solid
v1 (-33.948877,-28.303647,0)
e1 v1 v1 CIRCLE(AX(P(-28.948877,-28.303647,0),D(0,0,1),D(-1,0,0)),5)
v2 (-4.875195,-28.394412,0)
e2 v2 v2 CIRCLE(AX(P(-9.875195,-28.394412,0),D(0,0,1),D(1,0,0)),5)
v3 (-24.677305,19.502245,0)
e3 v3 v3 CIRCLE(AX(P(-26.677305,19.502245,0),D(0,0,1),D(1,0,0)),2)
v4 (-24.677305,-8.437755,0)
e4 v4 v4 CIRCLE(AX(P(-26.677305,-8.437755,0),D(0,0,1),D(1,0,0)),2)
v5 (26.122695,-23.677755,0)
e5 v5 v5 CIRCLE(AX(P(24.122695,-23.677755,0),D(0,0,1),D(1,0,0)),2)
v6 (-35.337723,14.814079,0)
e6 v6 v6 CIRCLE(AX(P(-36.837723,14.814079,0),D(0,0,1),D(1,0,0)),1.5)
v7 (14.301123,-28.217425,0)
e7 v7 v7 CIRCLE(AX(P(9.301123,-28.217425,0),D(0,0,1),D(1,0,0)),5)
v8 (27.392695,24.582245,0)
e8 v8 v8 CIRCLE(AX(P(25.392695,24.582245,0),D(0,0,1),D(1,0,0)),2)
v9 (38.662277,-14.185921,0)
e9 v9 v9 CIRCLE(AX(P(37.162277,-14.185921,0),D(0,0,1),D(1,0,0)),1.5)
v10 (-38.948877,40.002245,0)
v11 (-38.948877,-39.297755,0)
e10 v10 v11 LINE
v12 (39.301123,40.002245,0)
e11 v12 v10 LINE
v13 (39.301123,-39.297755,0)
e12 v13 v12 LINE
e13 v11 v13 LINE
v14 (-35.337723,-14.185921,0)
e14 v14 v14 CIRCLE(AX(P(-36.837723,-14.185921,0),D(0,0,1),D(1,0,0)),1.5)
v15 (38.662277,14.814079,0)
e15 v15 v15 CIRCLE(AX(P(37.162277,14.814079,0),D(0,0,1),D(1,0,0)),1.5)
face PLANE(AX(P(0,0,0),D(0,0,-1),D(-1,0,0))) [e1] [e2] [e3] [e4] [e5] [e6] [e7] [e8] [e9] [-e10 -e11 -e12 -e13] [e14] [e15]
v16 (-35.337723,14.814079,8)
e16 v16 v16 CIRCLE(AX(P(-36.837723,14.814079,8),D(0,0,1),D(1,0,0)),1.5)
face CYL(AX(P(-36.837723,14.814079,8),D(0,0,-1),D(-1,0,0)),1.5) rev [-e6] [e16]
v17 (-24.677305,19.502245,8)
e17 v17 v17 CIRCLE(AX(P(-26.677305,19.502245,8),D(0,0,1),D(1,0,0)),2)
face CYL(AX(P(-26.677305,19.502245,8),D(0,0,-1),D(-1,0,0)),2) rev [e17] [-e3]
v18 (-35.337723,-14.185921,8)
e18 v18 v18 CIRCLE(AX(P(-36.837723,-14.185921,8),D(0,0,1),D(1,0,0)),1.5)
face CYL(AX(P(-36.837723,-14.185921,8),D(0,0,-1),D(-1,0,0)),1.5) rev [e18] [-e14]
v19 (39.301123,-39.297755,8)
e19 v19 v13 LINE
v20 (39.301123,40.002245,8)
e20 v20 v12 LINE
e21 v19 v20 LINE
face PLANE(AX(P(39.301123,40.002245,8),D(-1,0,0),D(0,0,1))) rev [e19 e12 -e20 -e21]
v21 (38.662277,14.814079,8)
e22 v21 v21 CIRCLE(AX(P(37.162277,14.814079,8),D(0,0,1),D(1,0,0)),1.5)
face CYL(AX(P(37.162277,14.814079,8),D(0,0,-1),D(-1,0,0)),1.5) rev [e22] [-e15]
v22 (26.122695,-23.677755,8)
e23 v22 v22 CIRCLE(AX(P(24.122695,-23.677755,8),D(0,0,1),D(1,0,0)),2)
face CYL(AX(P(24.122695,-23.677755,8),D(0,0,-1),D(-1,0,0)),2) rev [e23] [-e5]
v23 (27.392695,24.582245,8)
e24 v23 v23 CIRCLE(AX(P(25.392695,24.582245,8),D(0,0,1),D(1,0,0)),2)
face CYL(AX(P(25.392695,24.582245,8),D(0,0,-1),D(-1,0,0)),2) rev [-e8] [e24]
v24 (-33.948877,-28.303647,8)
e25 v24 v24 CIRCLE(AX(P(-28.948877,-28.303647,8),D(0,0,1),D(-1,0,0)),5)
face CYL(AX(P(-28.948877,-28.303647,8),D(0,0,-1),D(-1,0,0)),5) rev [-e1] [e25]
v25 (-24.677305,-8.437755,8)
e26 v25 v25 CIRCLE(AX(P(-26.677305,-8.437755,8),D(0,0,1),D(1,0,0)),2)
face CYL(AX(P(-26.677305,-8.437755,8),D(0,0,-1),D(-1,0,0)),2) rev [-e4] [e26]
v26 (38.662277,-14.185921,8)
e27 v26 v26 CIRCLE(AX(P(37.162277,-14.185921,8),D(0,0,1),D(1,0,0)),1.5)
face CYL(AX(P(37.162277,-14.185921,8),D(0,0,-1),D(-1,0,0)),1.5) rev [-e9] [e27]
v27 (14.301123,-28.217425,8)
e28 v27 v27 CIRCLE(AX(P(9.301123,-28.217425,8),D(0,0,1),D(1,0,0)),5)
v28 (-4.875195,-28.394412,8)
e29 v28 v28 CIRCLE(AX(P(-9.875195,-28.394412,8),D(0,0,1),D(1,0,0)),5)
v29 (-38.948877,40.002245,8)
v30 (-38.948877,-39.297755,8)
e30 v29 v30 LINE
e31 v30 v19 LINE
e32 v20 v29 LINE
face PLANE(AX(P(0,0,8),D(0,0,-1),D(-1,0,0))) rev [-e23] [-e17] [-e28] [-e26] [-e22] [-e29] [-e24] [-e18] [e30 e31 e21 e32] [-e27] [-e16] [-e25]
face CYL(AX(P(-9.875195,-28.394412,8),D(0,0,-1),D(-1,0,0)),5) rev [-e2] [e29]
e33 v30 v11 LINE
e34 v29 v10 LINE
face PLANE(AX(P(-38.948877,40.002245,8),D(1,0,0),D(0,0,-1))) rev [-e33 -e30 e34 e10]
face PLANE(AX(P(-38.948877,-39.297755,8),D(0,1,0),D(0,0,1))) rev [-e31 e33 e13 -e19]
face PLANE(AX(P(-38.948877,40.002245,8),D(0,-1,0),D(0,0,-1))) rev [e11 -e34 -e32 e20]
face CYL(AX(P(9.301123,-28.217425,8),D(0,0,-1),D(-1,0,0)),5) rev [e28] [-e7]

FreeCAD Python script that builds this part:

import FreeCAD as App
import Part
import Sketcher

V = App.Vector


def add_polygon(sketch, points):
    """Adds a closed chain of lines whose ends are joined by coincident constraints."""
    first, n = sketch.GeometryCount, len(points)
    for a, b in zip(points, points[1:] + points[:1]):
        sketch.addGeometry(Part.LineSegment(App.Vector(*a, 0), App.Vector(*b, 0)), False)
    for i in range(n):
        sketch.addConstraint(Sketcher.Constraint("Coincident", first + i, 2, first + (i + 1) % n, 1))

doc = App.newDocument("Part")
params = doc.addObject("Spreadsheet::Sheet", "Params")
for row, (alias, value) in enumerate([
    ("sketch1_diameter", "10 mm"),
    ("sketch1_diameter2", "3 mm"),
    ("sketch1_diameter3", "4 mm"),
    ("sketch1_height", "79.3 mm"),
    ("sketch1_width", "78.25 mm"),
    ("pad1_length", "8 mm"),
], start=1):
    params.set(f"A{row}", alias)
    params.set(f"B{row}", "=" + value)
    params.setAlias(f"B{row}", alias)

body = doc.addObject("PartDesign::Body", "Body")

# Sketch on XY plane
sketch1 = body.newObject("Sketcher::SketchObject", "Sketch")
sketch1.AttachmentSupport = (doc.getObject("XY_Plane"), [""])
sketch1.MapMode = "FlatFace"
add_polygon(sketch1, [(-38.9, 40), (-38.9, -39.3), (39.3, -39.3), (39.3, 40)])  # lines 0-3
sketch1.addGeometry(Part.Circle(V(-28.9, -28.3, 0), V(0, 0, 1), 5), False)  # 4
sketch1.addGeometry(Part.Circle(V(-9.9, -28.4, 0), V(0, 0, 1), 5), False)  # 5
sketch1.addGeometry(Part.Circle(V(-36.8, -14.2, 0), V(0, 0, 1), 1.5), False)  # 6
sketch1.addGeometry(Part.Circle(V(-26.7, -8.4, 0), V(0, 0, 1), 2), False)  # 7
sketch1.addGeometry(Part.Circle(V(9.3, -28.2, 0), V(0, 0, 1), 5), False)  # 8
sketch1.addGeometry(Part.Circle(V(24.1, -23.7, 0), V(0, 0, 1), 2), False)  # 9
sketch1.addGeometry(Part.Circle(V(37.2, -14.2, 0), V(0, 0, 1), 1.5), False)  # 10
sketch1.addGeometry(Part.Circle(V(-36.8, 14.8, 0), V(0, 0, 1), 1.5), False)  # 11
sketch1.addGeometry(Part.Circle(V(-26.7, 19.5, 0), V(0, 0, 1), 2), False)  # 12
sketch1.addGeometry(Part.Circle(V(37.2, 14.8, 0), V(0, 0, 1), 1.5), False)  # 13
sketch1.addGeometry(Part.Circle(V(25.4, 24.6, 0), V(0, 0, 1), 2), False)  # 14
sketch1.addConstraint([
    Sketcher.Constraint("Vertical", 0),
    Sketcher.Constraint("Horizontal", 1),
    Sketcher.Constraint("Vertical", 2),
    Sketcher.Constraint("Horizontal", 3),
    Sketcher.Constraint("Equal", 4, 5),
    Sketcher.Constraint("Equal", 5, 8),
    Sketcher.Constraint("Equal", 7, 9),
    Sketcher.Constraint("Equal", 6, 10),
    Sketcher.Constraint("Equal", 10, 11),
    Sketcher.Constraint("Equal", 9, 12),
    Sketcher.Constraint("Equal", 11, 13),
    Sketcher.Constraint("Equal", 12, 14),
    Sketcher.Constraint("Horizontal", 6, 3, 10, 3),
    Sketcher.Constraint("Horizontal", 11, 3, 13, 3),
    Sketcher.Constraint("Vertical", 6, 3, 11, 3),
    Sketcher.Constraint("Vertical", 7, 3, 12, 3),
    Sketcher.Constraint("Vertical", 10, 3, 13, 3),
    Sketcher.Constraint("Diameter", 4, 10.0),
    Sketcher.Constraint("Diameter", 6, 3.0),
    Sketcher.Constraint("Diameter", 7, 4.0),
    Sketcher.Constraint("DistanceY", 0, 2, 0, 1, 79.3),
    Sketcher.Constraint("DistanceY", 6, 3, 11, 3, 29.0),
    Sketcher.Constraint("DistanceX", 0, 2, 4, 3, 10.0),
    Sketcher.Constraint("DistanceX", 8, 3, 1, 2, 30.0),
    Sketcher.Constraint("DistanceX", 1, 1, 1, 2, 78.25),
    Sketcher.Constraint("DistanceX", 7, 3, 9, 3, 50.8),
    Sketcher.Constraint("DistanceY", 12, 3, 2, 2, 20.5),
    Sketcher.Constraint("DistanceY", 9, 3, 7, 3, 15.24),
    Sketcher.Constraint("DistanceY", 7, 3, 12, 3, 27.94),
    Sketcher.Constraint("DistanceX", 9, 3, 14, 3, 1.27),
    Sketcher.Constraint("DistanceY", 9, 3, 14, 3, 48.26),
    Sketcher.Constraint("DistanceY", 6, 3, -1, 1, 14.185921),
    Sketcher.Constraint("DistanceX", 6, 3, 5, 3, 26.962528),
    Sketcher.Constraint("DistanceY", 5, 3, 6, 3, 14.208491),
    Sketcher.Constraint("DistanceX", 6, 3, 7, 3, 10.160419),
    Sketcher.Constraint("DistanceY", 4, 3, 7, 3, 19.865892),
    Sketcher.Constraint("DistanceY", 4, 3, 8, 3, 0.086222),
    Sketcher.Constraint("DistanceX", 9, 3, 10, 3, 13.039581),
    Sketcher.Constraint("DistanceX", 4, 3, -1, 1, 28.948877),
    Sketcher.Constraint("DistanceY", 4, 3, -1, 1, 28.303647),
    Sketcher.Constraint("DistanceX", 5, 3, -1, 1, 9.875195),
])
sketch1.setExpression("Constraints[21]", "Params.sketch1_diameter")
sketch1.setExpression("Constraints[22]", "Params.sketch1_diameter2")
sketch1.setExpression("Constraints[23]", "Params.sketch1_diameter3")
sketch1.setExpression("Constraints[24]", "Params.sketch1_height")
sketch1.setExpression("Constraints[28]", "Params.sketch1_width")
pad1 = body.newObject("PartDesign::Pad", "Pad")
pad1.Profile = sketch1
pad1.setExpression("Length", "Params.pad1_length")

doc.recompute()
